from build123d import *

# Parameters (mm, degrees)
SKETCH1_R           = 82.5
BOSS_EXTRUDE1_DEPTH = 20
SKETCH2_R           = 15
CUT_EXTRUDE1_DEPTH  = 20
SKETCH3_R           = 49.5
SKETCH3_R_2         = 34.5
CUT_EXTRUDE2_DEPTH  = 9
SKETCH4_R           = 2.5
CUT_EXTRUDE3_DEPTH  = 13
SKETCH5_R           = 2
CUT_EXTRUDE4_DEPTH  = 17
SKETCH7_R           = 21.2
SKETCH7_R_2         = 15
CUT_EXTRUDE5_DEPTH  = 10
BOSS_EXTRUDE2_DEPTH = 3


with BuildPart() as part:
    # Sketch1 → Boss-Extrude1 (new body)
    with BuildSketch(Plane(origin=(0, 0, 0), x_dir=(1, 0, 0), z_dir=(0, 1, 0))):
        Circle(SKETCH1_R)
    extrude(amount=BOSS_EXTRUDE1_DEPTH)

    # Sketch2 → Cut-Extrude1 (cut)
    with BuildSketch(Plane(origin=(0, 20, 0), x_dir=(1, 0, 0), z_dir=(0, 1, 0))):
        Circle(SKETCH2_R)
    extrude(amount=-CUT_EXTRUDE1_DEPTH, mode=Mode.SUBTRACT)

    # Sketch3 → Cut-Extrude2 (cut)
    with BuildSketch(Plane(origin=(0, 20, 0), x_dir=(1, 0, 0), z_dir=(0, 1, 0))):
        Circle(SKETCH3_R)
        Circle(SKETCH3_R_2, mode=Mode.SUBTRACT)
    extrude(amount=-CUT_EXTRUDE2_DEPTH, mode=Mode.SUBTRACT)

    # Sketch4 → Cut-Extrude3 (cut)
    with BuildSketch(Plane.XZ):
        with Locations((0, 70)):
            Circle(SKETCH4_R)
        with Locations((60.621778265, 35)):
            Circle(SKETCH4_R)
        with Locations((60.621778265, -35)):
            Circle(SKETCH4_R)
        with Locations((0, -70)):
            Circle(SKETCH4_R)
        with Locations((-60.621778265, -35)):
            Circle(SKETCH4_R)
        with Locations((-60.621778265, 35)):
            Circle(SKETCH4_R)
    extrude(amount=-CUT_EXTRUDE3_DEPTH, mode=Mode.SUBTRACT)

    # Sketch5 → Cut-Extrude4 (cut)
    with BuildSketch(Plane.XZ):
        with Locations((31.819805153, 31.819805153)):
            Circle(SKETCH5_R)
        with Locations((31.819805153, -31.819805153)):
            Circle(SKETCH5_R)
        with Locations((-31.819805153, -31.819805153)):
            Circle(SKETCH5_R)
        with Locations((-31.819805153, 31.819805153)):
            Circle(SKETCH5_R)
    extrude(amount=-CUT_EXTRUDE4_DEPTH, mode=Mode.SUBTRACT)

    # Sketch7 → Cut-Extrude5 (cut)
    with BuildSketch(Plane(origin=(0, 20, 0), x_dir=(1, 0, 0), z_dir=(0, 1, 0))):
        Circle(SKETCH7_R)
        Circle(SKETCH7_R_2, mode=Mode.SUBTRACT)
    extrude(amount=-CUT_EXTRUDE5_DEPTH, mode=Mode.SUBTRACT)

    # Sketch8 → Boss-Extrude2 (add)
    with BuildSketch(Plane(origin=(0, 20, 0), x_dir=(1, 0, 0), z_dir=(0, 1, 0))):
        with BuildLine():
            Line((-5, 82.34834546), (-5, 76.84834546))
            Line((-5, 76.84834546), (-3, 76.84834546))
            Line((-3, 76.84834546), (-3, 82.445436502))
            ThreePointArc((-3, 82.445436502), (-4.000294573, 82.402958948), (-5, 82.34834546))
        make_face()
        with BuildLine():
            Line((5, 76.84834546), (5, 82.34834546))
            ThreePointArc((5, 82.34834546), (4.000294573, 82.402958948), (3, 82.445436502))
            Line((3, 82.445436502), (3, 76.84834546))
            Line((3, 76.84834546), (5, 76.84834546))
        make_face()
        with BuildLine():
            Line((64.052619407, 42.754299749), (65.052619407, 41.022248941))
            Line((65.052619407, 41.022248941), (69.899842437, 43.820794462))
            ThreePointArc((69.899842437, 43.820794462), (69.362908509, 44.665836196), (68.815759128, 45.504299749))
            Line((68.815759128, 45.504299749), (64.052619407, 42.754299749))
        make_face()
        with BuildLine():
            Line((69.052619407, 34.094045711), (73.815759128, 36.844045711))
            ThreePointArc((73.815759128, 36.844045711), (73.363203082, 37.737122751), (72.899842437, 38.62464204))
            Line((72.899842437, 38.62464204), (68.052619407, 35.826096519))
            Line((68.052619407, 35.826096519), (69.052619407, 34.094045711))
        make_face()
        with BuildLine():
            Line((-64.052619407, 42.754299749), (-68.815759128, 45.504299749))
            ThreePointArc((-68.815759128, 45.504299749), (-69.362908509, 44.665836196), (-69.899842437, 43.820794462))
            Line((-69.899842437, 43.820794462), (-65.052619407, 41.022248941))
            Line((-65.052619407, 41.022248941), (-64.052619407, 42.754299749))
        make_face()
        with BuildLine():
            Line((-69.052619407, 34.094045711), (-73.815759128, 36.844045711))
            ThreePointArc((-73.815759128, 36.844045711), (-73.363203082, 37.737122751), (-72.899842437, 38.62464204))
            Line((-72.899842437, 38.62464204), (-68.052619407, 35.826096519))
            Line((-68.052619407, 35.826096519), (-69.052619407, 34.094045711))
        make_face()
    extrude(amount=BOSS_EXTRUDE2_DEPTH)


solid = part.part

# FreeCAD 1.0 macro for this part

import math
import FreeCAD as App
import Part
import Sketcher
from FreeCAD import Vector
Q = App.Units.Quantity

doc = App.newDocument("Part")
body = doc.addObject("PartDesign::Body", "Body")

sketch1 = body.newObject("Sketcher::SketchObject", "Sketch")
sketch1.AttachmentSupport = (doc.getObject("XZ_Plane"), [""])
sketch1.MapMode = "FlatFace"
sketch1.addGeometry(Part.Circle(Vector(0, 0, 0), Vector(0, 0, 1), 82), False)
sketch1.addConstraint([
    Sketcher.Constraint("Coincident", 0, 3, -1, 1),
    Sketcher.Constraint("Diameter", 0, 165.0),
])
pad1 = body.newObject("PartDesign::Pad", "Pad")
pad1.Profile = sketch1
pad1.Length = 20
pad1.Reversed = True

sketch2 = body.newObject("Sketcher::SketchObject", "Sketch001")
sketch2.AttachmentSupport = (doc.getObject("XZ_Plane"), [""])
sketch2.MapMode = "FlatFace"
sketch2.AttachmentOffset = App.Placement(Vector(0, 0, -20), App.Rotation())
sketch2.addGeometry(Part.Circle(Vector(0, 0, 0), Vector(0, 0, 1), 15), False)
sketch2.addConstraint([
    Sketcher.Constraint("Coincident", 0, 3, -1, 1),
    Sketcher.Constraint("Diameter", 0, 30.0),
])
pocket1 = body.newObject("PartDesign::Pocket", "Pocket")
pocket1.Profile = sketch2
pocket1.Length = 20
pocket1.Reversed = True

sketch3 = body.newObject("Sketcher::SketchObject", "Sketch002")
sketch3.AttachmentSupport = (doc.getObject("XZ_Plane"), [""])
sketch3.MapMode = "FlatFace"
sketch3.AttachmentOffset = App.Placement(Vector(0, 0, -20), App.Rotation())
sketch3.addGeometry([
    Part.Circle(Vector(0, 0, 0), Vector(0, 0, 1), 50),
    Part.Circle(Vector(0, 0, 0), Vector(0, 0, 1), 34),
], False)
sketch3.addConstraint([
    Sketcher.Constraint("Coincident", 0, 3, -1, 1),
    Sketcher.Constraint("Coincident", 1, 3, -1, 1),
    Sketcher.Constraint("Diameter", 0, 99.0),
    Sketcher.Constraint("Diameter", 1, 69.0),
])
pocket2 = body.newObject("PartDesign::Pocket", "Pocket001")
pocket2.Profile = sketch3
pocket2.Length = 9
pocket2.Reversed = True

sketch4 = body.newObject("Sketcher::SketchObject", "Sketch003")
sketch4.AttachmentSupport = (doc.getObject("XZ_Plane"), [""])
sketch4.MapMode = "FlatFace"
sketch4.addGeometry([
    Part.Circle(Vector(0, 70, 0), Vector(0, 0, 1), 2.5),
    Part.Circle(Vector(60.6, 35, 0), Vector(0, 0, 1), 2.5),
    Part.Circle(Vector(60.6, -35, 0), Vector(0, 0, 1), 2.5),
    Part.Circle(Vector(0, -70, 0), Vector(0, 0, 1), 2.5),
    Part.Circle(Vector(-60.6, -35, 0), Vector(0, 0, 1), 2.5),
    Part.Circle(Vector(-60.6, 35, 0), Vector(0, 0, 1), 2.5),
], False)
sketch4.addConstraint([
    Sketcher.Constraint("Equal", 0, 1),
    Sketcher.Constraint("Equal", 1, 2),
    Sketcher.Constraint("Equal", 2, 3),
    Sketcher.Constraint("Equal", 3, 4),
    Sketcher.Constraint("Equal", 4, 5),
    Sketcher.Constraint("Symmetric", 0, 3, 3, 3, -1, 1),
    Sketcher.Constraint("Symmetric", 1, 3, 4, 3, -1, 1),
    Sketcher.Constraint("Symmetric", 2, 3, 5, 3, -1, 1),
    Sketcher.Constraint("Symmetric", 2, 3, 4, 3, -2),
    Sketcher.Constraint("PointOnObject", 0, 3, -2),
    Sketcher.Constraint("Diameter", 0, 5.0),
    Sketcher.Constraint("DistanceY", -1, 1, 0, 3, 70.0),
    Sketcher.Constraint("DistanceY", -1, 1, 1, 3, 35.0),
    Sketcher.Constraint("DistanceX", -1, 1, 1, 3, 60.621778),
])
pocket3 = body.newObject("PartDesign::Pocket", "Pocket002")
pocket3.Profile = sketch4
pocket3.Length = 13

sketch5 = body.newObject("Sketcher::SketchObject", "Sketch004")
sketch5.AttachmentSupport = (doc.getObject("XZ_Plane"), [""])
sketch5.MapMode = "FlatFace"
sketch5.addGeometry([
    Part.Circle(Vector(31.8, 31.8, 0), Vector(0, 0, 1), 2),
    Part.Circle(Vector(31.8, -31.8, 0), Vector(0, 0, 1), 2),
    Part.Circle(Vector(-31.8, -31.8, 0), Vector(0, 0, 1), 2),
    Part.Circle(Vector(-31.8, 31.8, 0), Vector(0, 0, 1), 2),
], False)
sketch5.addConstraint([
    Sketcher.Constraint("Equal", 0, 1),
    Sketcher.Constraint("Equal", 1, 2),
    Sketcher.Constraint("Equal", 2, 3),
    Sketcher.Constraint("Symmetric", 0, 3, 2, 3, -1, 1),
    Sketcher.Constraint("Symmetric", 1, 3, 3, 3, -1, 1),
    Sketcher.Constraint("Symmetric", 1, 3, 2, 3, -2),
    Sketcher.Constraint("Diameter", 0, 4.0),
    Sketcher.Constraint("DistanceY", 1, 3, 0, 3, 63.63961),
    Sketcher.Constraint("DistanceX", 2, 3, 1, 3, 63.63961),
])
pocket4 = body.newObject("PartDesign::Pocket", "Pocket003")
pocket4.Profile = sketch5
pocket4.Length = 17

sketch6 = body.newObject("Sketcher::SketchObject", "Sketch005")
sketch6.AttachmentSupport = (doc.getObject("XZ_Plane"), [""])
sketch6.MapMode = "FlatFace"
sketch6.AttachmentOffset = App.Placement(Vector(0, 0, -20), App.Rotation())
sketch6.addGeometry([
    Part.Circle(Vector(0, 0, 0), Vector(0, 0, 1), 21),
    Part.Circle(Vector(0, 0, 0), Vector(0, 0, 1), 15),
], False)
sketch6.addConstraint([
    Sketcher.Constraint("Coincident", 0, 3, -1, 1),
    Sketcher.Constraint("Coincident", 1, 3, -1, 1),
    Sketcher.Constraint("Diameter", 1, 30.0),
    Sketcher.Constraint("Diameter", 0, 42.4),
])
pocket5 = body.newObject("PartDesign::Pocket", "Pocket004")
pocket5.Profile = sketch6
pocket5.Length = 10
pocket5.Reversed = True

sketch7 = body.newObject("Sketcher::SketchObject", "Sketch006")
sketch7.AttachmentSupport = (doc.getObject("XZ_Plane"), [""])
sketch7.MapMode = "FlatFace"
sketch7.AttachmentOffset = App.Placement(Vector(0, 0, -20), App.Rotation())
sketch7.addGeometry([
    Part.LineSegment(Vector(-5, -82.3, 0), Vector(-5, -76.8, 0)),
    Part.LineSegment(Vector(-5, -76.8, 0), Vector(-3, -76.8, 0)),
    Part.LineSegment(Vector(-3, -76.8, 0), Vector(-3, -82.4, 0)),
    Part.ArcOfCircle(Part.Circle(Vector(0, 0, 0), Vector(0, 0, 1), 82.5), math.radians(-93.47), math.radians(-92.08)),
    Part.LineSegment(Vector(5, -76.8, 0), Vector(5, -82.3, 0)),
    Part.ArcOfCircle(Part.Circle(Vector(0, 0, 0), Vector(0, 0, 1), 82.5), math.radians(-87.92), math.radians(-86.53)),
    Part.LineSegment(Vector(3, -82.4, 0), Vector(3, -76.8, 0)),
    Part.LineSegment(Vector(3, -76.8, 0), Vector(5, -76.8, 0)),
    Part.LineSegment(Vector(64.1, -42.8, 0), Vector(65.1, -41, 0)),
    Part.LineSegment(Vector(65.1, -41, 0), Vector(69.9, -43.8, 0)),
    Part.ArcOfCircle(Part.Circle(Vector(0, 0, 0), Vector(0, 0, 1), 82.5), math.radians(-33.47), math.radians(-32.08)),
    Part.LineSegment(Vector(68.8, -45.5, 0), Vector(64.1, -42.8, 0)),
    Part.LineSegment(Vector(69.1, -34.1, 0), Vector(73.8, -36.8, 0)),
    Part.ArcOfCircle(Part.Circle(Vector(0, 0, 0), Vector(0, 0, 1), 82.5), math.radians(-27.92), math.radians(-26.53)),
    Part.LineSegment(Vector(72.9, -38.6, 0), Vector(68.1, -35.8, 0)),
    Part.LineSegment(Vector(68.1, -35.8, 0), Vector(69.1, -34.1, 0)),
    Part.LineSegment(Vector(-64.1, -42.8, 0), Vector(-68.8, -45.5, 0)),
    Part.ArcOfCircle(Part.Circle(Vector(0, 0, 0), Vector(0, 0, 1), 82.5), math.radians(-147.92), math.radians(-146.53)),
    Part.LineSegment(Vector(-69.9, -43.8, 0), Vector(-65.1, -41, 0)),
    Part.LineSegment(Vector(-65.1, -41, 0), Vector(-64.1, -42.8, 0)),
    Part.LineSegment(Vector(-73.8, -36.8, 0), Vector(-69.1, -34.1, 0)),
    Part.LineSegment(Vector(-69.1, -34.1, 0), Vector(-68.1, -35.8, 0)),
    Part.LineSegment(Vector(-68.1, -35.8, 0), Vector(-72.9, -38.6, 0)),
    Part.ArcOfCircle(Part.Circle(Vector(0, 0, 0), Vector(0, 0, 1), 82.5), math.radians(-153.47), math.radians(-152.08)),
], False)
sketch7.addConstraint([
    Sketcher.Constraint("Coincident", 0, 2, 1, 1),
    Sketcher.Constraint("Coincident", 1, 2, 2, 1),
    Sketcher.Constraint("Coincident", 2, 2, 3, 2),
    Sketcher.Constraint("Coincident", 3, 1, 0, 1),
    Sketcher.Constraint("Coincident", 4, 2, 5, 2),
    Sketcher.Constraint("Coincident", 5, 1, 6, 1),
    Sketcher.Constraint("Coincident", 6, 2, 7, 1),
    Sketcher.Constraint("Coincident", 7, 2, 4, 1),
    Sketcher.Constraint("Coincident", 8, 2, 9, 1),
    Sketcher.Constraint("Coincident", 9, 2, 10, 2),
    Sketcher.Constraint("Coincident", 10, 1, 11, 1),
    Sketcher.Constraint("Coincident", 11, 2, 8, 1),
    Sketcher.Constraint("Coincident", 12, 2, 13, 2),
    Sketcher.Constraint("Coincident", 13, 1, 14, 1),
    Sketcher.Constraint("Coincident", 14, 2, 15, 1),
    Sketcher.Constraint("Coincident", 15, 2, 12, 1),
    Sketcher.Constraint("Coincident", 16, 2, 17, 2),
    Sketcher.Constraint("Coincident", 17, 1, 18, 1),
    Sketcher.Constraint("Coincident", 18, 2, 19, 1),
    Sketcher.Constraint("Coincident", 19, 2, 16, 1),
    Sketcher.Constraint("Coincident", 20, 2, 21, 1),
    Sketcher.Constraint("Coincident", 21, 2, 22, 1),
    Sketcher.Constraint("Coincident", 22, 2, 23, 2),
    Sketcher.Constraint("Coincident", 23, 1, 20, 1),
    Sketcher.Constraint("Vertical", 0),
    Sketcher.Constraint("Horizontal", 1),
    Sketcher.Constraint("Vertical", 2),
    Sketcher.Constraint("Vertical", 4),
    Sketcher.Constraint("Vertical", 6),
    Sketcher.Constraint("Horizontal", 7),
    Sketcher.Constraint("Coincident", 3, 3, -1, 1),
    Sketcher.Constraint("Coincident", 5, 3, -1, 1),
    Sketcher.Constraint("Coincident", 10, 3, -1, 1),
    Sketcher.Constraint("Coincident", 13, 3, -1, 1),
    Sketcher.Constraint("Coincident", 17, 3, -1, 1),
    Sketcher.Constraint("Coincident", 23, 3, -1, 1),
    Sketcher.Constraint("Equal", 3, 5),
    Sketcher.Constraint("Equal", 10, 17),
    Sketcher.Constraint("Equal", 13, 23),
    Sketcher.Constraint("Symmetric", 1, 2, 6, 2, -2),
    Sketcher.Constraint("Symmetric", 8, 2, 18, 2, -2),
    Sketcher.Constraint("Symmetric", 11, 2, 19, 2, -2),
    Sketcher.Constraint("Symmetric", 15, 2, 20, 2, -2),
    Sketcher.Constraint("Symmetric", 14, 2, 21, 2, -2),
    Sketcher.Constraint("Perpendicular", 8, 9),
    Sketcher.Constraint("Parallel", 9, 11),
    Sketcher.Constraint("Parallel", 11, 12),
    Sketcher.Constraint("Parallel", 12, 14),
    Sketcher.Constraint("Perpendicular", 14, 15),
    Sketcher.Constraint("Parallel", 16, 18),
    Sketcher.Constraint("Perpendicular", 18, 19),
    Sketcher.Constraint("Perpendicular", 19, 20),
    Sketcher.Constraint("Perpendicular", 21, 22),
    Sketcher.Constraint("Horizontal", 3, 1, 4, 2),
    Sketcher.Constraint("Equal", 11, 12),
    Sketcher.Constraint("Equal", 9, 14),
    Sketcher.Constraint("Equal", 8, 15),
    Sketcher.Constraint("DistanceX", 1, 1, 1, 2, 2.0),
    Sketcher.Constraint("Angle", 8, Q("60 deg")),
    Sketcher.Constraint("Distance", 8, 2.0),
    Sketcher.Constraint("DistanceY", 0, 1, 0, 2, 5.5),
    Sketcher.Constraint("DistanceX", 0, 2, -1, 1, 5.0),
    Sketcher.Constraint("DistanceX", 10, 1, 12, 2, 5.0),
    Sketcher.Constraint("Distance", 11, 5.5),
    Sketcher.Constraint("Radius", 3, 82.499996),
    Sketcher.Constraint("Radius", 10, 82.500007),
    Sketcher.Constraint("Radius", 13, 82.500004),
])
pad2 = body.newObject("PartDesign::Pad", "Pad001")
pad2.Profile = sketch7
pad2.Length = 3
pad2.Reversed = True

doc.recompute()
